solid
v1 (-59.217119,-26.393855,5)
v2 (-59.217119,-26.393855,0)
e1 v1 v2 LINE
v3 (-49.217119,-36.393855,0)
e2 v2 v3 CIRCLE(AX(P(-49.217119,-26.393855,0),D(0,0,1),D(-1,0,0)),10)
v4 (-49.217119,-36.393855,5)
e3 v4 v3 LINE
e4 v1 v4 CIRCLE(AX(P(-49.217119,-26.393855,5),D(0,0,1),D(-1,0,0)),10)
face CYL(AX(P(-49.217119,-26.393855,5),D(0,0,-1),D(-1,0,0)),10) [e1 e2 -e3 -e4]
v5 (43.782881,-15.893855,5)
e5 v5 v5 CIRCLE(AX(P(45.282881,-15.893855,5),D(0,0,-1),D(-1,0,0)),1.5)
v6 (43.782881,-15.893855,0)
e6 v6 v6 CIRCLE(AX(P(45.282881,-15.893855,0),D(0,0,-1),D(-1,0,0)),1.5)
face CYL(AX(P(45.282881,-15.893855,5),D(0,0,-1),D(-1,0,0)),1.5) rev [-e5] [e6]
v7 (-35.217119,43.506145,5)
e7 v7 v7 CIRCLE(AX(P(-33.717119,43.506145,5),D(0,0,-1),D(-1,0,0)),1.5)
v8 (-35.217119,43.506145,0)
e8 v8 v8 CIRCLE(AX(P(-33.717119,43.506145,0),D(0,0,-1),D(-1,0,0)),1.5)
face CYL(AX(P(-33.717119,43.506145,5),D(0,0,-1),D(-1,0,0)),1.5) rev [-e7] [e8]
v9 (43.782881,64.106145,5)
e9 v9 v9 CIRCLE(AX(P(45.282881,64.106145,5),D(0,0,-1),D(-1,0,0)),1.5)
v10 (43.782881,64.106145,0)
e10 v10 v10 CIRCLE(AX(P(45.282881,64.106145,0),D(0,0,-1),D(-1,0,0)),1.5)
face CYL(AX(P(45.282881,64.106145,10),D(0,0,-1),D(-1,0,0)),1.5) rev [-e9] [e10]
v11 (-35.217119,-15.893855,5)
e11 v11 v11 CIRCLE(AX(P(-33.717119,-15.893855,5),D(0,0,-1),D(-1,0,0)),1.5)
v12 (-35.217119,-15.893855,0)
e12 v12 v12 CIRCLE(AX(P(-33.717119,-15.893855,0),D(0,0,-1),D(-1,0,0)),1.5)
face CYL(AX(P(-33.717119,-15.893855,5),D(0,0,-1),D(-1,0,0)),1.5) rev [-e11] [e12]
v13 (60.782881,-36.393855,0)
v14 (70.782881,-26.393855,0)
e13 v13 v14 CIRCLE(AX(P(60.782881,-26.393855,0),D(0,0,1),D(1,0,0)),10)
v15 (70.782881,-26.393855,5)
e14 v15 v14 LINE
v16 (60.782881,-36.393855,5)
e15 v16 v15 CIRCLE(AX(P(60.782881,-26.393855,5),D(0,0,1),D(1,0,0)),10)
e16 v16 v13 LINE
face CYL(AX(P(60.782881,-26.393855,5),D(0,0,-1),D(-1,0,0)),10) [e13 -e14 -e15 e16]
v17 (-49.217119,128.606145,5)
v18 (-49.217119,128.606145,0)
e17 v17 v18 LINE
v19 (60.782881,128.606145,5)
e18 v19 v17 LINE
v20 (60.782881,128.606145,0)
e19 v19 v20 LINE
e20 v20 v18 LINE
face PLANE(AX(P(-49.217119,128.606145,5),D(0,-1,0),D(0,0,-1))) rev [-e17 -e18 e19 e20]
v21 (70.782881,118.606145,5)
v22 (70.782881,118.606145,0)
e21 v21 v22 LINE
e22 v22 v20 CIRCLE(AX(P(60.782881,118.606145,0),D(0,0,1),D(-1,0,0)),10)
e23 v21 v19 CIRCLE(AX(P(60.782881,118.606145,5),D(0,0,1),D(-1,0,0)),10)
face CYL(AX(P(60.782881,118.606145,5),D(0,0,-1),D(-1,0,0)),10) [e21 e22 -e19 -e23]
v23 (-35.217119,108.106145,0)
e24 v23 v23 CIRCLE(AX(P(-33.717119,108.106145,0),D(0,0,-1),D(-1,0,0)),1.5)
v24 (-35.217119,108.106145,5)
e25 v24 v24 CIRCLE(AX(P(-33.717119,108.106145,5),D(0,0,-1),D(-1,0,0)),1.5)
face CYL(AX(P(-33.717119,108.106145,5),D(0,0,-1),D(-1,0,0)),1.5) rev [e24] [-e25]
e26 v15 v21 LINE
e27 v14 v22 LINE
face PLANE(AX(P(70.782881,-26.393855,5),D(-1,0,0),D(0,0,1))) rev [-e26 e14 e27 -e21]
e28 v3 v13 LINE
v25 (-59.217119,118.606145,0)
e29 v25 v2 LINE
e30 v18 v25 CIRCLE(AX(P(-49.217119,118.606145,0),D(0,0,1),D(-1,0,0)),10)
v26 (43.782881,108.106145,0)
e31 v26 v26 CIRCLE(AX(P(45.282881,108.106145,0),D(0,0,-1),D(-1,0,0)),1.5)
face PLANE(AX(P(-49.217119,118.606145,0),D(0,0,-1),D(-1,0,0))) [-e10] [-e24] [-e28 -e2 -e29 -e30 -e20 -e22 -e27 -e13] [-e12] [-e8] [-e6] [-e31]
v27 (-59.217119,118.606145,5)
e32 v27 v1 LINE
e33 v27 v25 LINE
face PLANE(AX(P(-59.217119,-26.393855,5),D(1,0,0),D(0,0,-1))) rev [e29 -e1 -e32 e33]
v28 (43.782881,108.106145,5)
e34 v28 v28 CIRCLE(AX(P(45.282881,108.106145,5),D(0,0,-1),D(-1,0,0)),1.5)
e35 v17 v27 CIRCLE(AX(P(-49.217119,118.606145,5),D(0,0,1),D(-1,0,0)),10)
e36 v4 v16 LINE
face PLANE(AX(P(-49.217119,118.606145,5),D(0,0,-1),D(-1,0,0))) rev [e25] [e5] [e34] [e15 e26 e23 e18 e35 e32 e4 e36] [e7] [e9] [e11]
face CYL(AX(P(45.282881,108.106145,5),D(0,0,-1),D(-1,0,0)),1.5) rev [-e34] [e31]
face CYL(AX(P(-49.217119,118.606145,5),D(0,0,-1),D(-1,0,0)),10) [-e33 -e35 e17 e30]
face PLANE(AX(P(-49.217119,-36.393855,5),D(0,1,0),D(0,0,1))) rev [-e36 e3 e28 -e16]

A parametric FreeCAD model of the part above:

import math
import FreeCAD as App
import Part
import Sketcher
Q = App.Units.Quantity

doc = App.newDocument("Part")
body = doc.addObject("PartDesign::Body", "Body")

# Sketch on XY plane
sketch1 = body.newObject("Sketcher::SketchObject", "Sketch")
sketch1.AttachmentSupport = (doc.getObject("XY_Plane"), [""])
sketch1.MapMode = "FlatFace"
sketch1.addGeometry([
    Part.LineSegment(App.Vector(-49, -36, 0), App.Vector(61, -36, 0)),  # 0
    Part.ArcOfCircle(Part.Circle(App.Vector(61, -26, 0), App.Vector(0, 0, 1), 10), math.radians(-90), math.radians(0)),  # 1
    Part.LineSegment(App.Vector(71, -26, 0), App.Vector(71, 119, 0)),  # 2
    Part.ArcOfCircle(Part.Circle(App.Vector(61, 119, 0), App.Vector(0, 0, 1), 10), math.radians(0), math.radians(90)),  # 3
    Part.LineSegment(App.Vector(61, 129, 0), App.Vector(-49, 129, 0)),  # 4
    Part.ArcOfCircle(Part.Circle(App.Vector(-49, 119, 0), App.Vector(0, 0, 1), 10), math.radians(90), math.radians(180)),  # 5
    Part.LineSegment(App.Vector(-59, 119, 0), App.Vector(-59, -26, 0)),  # 6
    Part.ArcOfCircle(Part.Circle(App.Vector(-49, -26, 0), App.Vector(0, 0, 1), 10), math.radians(180), math.radians(270)),  # 7
], False)
sketch1.addConstraint([
    Sketcher.Constraint("Tangent", 0, 2, 1, 1),
    Sketcher.Constraint("Tangent", 1, 2, 2, 1),
    Sketcher.Constraint("Tangent", 2, 2, 3, 1),
    Sketcher.Constraint("Tangent", 3, 2, 4, 1),
    Sketcher.Constraint("Tangent", 4, 2, 5, 1),
    Sketcher.Constraint("Tangent", 5, 2, 6, 1),
    Sketcher.Constraint("Tangent", 6, 2, 7, 1),
    Sketcher.Constraint("Tangent", 7, 2, 0, 1),
    Sketcher.Constraint("Horizontal", 0),
    Sketcher.Constraint("Vertical", 2),
    Sketcher.Constraint("Horizontal", 4),
    Sketcher.Constraint("Vertical", 6),
    Sketcher.Constraint("Equal", 1, 3),
    Sketcher.Constraint("Equal", 3, 5),
    Sketcher.Constraint("Equal", 5, 7),
    Sketcher.Constraint("Radius", 1, Q("10 mm")),
    Sketcher.Constraint("DistanceX", 0, 1, 0, 2, Q("110 mm")),
    Sketcher.Constraint("DistanceY", 2, 1, 2, 2, Q("145 mm")),
    Sketcher.Constraint("DistanceX", -1, 1, 1, 3, Q("60.782881 mm")),
    Sketcher.Constraint("DistanceY", 1, 3, -1, 1, Q("26.393855 mm")),
])
pad1 = body.newObject("PartDesign::Pad", "Pad")
pad1.Profile = sketch1
pad1.Length = 5

# Sketch on XY plane
sketch2 = body.newObject("Sketcher::SketchObject", "Sketch001")
sketch2.AttachmentSupport = (doc.getObject("XY_Plane"), [""])
sketch2.MapMode = "FlatFace"
sketch2.addGeometry([
    Part.Circle(App.Vector(-33.7, -15.9, 0), App.Vector(0, 0, 1), 1.5),
    Part.Circle(App.Vector(-33.7, 108.1, 0), App.Vector(0, 0, 1), 1.5),
    Part.Circle(App.Vector(45.3, -15.9, 0), App.Vector(0, 0, 1), 1.5),
    Part.Circle(App.Vector(45.3, 108.1, 0), App.Vector(0, 0, 1), 1.5),
], False)
sketch2.addConstraint([
    Sketcher.Constraint("Equal", 0, 1),
    Sketcher.Constraint("Equal", 1, 2),
    Sketcher.Constraint("Equal", 2, 3),
    Sketcher.Constraint("Horizontal", 0, 3, 2, 3),
    Sketcher.Constraint("Horizontal", 1, 3, 3, 3),
    Sketcher.Constraint("Vertical", 0, 3, 1, 3),
    Sketcher.Constraint("Vertical", 2, 3, 3, 3),
    Sketcher.Constraint("Diameter", 0, Q("3 mm")),
    Sketcher.Constraint("DistanceY", 0, 3, 1, 3, Q("124 mm")),
    Sketcher.Constraint("DistanceX", 0, 3, 2, 3, Q("79 mm")),
    Sketcher.Constraint("DistanceX", 0, 3, -1, 1, Q("33.717119 mm")),
    Sketcher.Constraint("DistanceY", 0, 3, -1, 1, Q("15.893855 mm")),
])
pocket1 = body.newObject("PartDesign::Pocket", "Pocket")
pocket1.Profile = sketch2
pocket1.Length = 5
pocket1.Reversed = True

# Sketch on XY plane
sketch3 = body.newObject("Sketcher::SketchObject", "Sketch002")
sketch3.AttachmentSupport = (doc.getObject("XY_Plane"), [""])
sketch3.MapMode = "FlatFace"
sketch3.addGeometry(Part.Circle(App.Vector(-33.7, 43.5, 0), App.Vector(0, 0, 1), 1.5), False)
sketch3.addConstraint([
    Sketcher.Constraint("Diameter", 0, Q("3 mm")),
    Sketcher.Constraint("DistanceX", 0, 3, -1, 1, Q("33.717119 mm")),
    Sketcher.Constraint("DistanceY", -1, 1, 0, 3, Q("43.506145 mm")),
])
pocket2 = body.newObject("PartDesign::Pocket", "Pocket001")
pocket2.Profile = sketch3
pocket2.Type = "ThroughAll"
pocket2.Reversed = True

# Sketch on XY plane
sketch4 = body.newObject("Sketcher::SketchObject", "Sketch003")
sketch4.AttachmentSupport = (doc.getObject("XY_Plane"), [""])
sketch4.MapMode = "FlatFace"
sketch4.addGeometry(Part.Circle(App.Vector(45.3, 64.1, 0), App.Vector(0, 0, 1), 1.5), False)
sketch4.addConstraint([
    Sketcher.Constraint("Diameter", 0, Q("3 mm")),
    Sketcher.Constraint("DistanceX", -1, 1, 0, 3, Q("45.282881 mm")),
    Sketcher.Constraint("DistanceY", -1, 1, 0, 3, Q("64.106145 mm")),
])
pocket3 = body.newObject("PartDesign::Pocket", "Pocket002")
pocket3.Profile = sketch4
pocket3.Length = 10
pocket3.Reversed = True

doc.recompute()
